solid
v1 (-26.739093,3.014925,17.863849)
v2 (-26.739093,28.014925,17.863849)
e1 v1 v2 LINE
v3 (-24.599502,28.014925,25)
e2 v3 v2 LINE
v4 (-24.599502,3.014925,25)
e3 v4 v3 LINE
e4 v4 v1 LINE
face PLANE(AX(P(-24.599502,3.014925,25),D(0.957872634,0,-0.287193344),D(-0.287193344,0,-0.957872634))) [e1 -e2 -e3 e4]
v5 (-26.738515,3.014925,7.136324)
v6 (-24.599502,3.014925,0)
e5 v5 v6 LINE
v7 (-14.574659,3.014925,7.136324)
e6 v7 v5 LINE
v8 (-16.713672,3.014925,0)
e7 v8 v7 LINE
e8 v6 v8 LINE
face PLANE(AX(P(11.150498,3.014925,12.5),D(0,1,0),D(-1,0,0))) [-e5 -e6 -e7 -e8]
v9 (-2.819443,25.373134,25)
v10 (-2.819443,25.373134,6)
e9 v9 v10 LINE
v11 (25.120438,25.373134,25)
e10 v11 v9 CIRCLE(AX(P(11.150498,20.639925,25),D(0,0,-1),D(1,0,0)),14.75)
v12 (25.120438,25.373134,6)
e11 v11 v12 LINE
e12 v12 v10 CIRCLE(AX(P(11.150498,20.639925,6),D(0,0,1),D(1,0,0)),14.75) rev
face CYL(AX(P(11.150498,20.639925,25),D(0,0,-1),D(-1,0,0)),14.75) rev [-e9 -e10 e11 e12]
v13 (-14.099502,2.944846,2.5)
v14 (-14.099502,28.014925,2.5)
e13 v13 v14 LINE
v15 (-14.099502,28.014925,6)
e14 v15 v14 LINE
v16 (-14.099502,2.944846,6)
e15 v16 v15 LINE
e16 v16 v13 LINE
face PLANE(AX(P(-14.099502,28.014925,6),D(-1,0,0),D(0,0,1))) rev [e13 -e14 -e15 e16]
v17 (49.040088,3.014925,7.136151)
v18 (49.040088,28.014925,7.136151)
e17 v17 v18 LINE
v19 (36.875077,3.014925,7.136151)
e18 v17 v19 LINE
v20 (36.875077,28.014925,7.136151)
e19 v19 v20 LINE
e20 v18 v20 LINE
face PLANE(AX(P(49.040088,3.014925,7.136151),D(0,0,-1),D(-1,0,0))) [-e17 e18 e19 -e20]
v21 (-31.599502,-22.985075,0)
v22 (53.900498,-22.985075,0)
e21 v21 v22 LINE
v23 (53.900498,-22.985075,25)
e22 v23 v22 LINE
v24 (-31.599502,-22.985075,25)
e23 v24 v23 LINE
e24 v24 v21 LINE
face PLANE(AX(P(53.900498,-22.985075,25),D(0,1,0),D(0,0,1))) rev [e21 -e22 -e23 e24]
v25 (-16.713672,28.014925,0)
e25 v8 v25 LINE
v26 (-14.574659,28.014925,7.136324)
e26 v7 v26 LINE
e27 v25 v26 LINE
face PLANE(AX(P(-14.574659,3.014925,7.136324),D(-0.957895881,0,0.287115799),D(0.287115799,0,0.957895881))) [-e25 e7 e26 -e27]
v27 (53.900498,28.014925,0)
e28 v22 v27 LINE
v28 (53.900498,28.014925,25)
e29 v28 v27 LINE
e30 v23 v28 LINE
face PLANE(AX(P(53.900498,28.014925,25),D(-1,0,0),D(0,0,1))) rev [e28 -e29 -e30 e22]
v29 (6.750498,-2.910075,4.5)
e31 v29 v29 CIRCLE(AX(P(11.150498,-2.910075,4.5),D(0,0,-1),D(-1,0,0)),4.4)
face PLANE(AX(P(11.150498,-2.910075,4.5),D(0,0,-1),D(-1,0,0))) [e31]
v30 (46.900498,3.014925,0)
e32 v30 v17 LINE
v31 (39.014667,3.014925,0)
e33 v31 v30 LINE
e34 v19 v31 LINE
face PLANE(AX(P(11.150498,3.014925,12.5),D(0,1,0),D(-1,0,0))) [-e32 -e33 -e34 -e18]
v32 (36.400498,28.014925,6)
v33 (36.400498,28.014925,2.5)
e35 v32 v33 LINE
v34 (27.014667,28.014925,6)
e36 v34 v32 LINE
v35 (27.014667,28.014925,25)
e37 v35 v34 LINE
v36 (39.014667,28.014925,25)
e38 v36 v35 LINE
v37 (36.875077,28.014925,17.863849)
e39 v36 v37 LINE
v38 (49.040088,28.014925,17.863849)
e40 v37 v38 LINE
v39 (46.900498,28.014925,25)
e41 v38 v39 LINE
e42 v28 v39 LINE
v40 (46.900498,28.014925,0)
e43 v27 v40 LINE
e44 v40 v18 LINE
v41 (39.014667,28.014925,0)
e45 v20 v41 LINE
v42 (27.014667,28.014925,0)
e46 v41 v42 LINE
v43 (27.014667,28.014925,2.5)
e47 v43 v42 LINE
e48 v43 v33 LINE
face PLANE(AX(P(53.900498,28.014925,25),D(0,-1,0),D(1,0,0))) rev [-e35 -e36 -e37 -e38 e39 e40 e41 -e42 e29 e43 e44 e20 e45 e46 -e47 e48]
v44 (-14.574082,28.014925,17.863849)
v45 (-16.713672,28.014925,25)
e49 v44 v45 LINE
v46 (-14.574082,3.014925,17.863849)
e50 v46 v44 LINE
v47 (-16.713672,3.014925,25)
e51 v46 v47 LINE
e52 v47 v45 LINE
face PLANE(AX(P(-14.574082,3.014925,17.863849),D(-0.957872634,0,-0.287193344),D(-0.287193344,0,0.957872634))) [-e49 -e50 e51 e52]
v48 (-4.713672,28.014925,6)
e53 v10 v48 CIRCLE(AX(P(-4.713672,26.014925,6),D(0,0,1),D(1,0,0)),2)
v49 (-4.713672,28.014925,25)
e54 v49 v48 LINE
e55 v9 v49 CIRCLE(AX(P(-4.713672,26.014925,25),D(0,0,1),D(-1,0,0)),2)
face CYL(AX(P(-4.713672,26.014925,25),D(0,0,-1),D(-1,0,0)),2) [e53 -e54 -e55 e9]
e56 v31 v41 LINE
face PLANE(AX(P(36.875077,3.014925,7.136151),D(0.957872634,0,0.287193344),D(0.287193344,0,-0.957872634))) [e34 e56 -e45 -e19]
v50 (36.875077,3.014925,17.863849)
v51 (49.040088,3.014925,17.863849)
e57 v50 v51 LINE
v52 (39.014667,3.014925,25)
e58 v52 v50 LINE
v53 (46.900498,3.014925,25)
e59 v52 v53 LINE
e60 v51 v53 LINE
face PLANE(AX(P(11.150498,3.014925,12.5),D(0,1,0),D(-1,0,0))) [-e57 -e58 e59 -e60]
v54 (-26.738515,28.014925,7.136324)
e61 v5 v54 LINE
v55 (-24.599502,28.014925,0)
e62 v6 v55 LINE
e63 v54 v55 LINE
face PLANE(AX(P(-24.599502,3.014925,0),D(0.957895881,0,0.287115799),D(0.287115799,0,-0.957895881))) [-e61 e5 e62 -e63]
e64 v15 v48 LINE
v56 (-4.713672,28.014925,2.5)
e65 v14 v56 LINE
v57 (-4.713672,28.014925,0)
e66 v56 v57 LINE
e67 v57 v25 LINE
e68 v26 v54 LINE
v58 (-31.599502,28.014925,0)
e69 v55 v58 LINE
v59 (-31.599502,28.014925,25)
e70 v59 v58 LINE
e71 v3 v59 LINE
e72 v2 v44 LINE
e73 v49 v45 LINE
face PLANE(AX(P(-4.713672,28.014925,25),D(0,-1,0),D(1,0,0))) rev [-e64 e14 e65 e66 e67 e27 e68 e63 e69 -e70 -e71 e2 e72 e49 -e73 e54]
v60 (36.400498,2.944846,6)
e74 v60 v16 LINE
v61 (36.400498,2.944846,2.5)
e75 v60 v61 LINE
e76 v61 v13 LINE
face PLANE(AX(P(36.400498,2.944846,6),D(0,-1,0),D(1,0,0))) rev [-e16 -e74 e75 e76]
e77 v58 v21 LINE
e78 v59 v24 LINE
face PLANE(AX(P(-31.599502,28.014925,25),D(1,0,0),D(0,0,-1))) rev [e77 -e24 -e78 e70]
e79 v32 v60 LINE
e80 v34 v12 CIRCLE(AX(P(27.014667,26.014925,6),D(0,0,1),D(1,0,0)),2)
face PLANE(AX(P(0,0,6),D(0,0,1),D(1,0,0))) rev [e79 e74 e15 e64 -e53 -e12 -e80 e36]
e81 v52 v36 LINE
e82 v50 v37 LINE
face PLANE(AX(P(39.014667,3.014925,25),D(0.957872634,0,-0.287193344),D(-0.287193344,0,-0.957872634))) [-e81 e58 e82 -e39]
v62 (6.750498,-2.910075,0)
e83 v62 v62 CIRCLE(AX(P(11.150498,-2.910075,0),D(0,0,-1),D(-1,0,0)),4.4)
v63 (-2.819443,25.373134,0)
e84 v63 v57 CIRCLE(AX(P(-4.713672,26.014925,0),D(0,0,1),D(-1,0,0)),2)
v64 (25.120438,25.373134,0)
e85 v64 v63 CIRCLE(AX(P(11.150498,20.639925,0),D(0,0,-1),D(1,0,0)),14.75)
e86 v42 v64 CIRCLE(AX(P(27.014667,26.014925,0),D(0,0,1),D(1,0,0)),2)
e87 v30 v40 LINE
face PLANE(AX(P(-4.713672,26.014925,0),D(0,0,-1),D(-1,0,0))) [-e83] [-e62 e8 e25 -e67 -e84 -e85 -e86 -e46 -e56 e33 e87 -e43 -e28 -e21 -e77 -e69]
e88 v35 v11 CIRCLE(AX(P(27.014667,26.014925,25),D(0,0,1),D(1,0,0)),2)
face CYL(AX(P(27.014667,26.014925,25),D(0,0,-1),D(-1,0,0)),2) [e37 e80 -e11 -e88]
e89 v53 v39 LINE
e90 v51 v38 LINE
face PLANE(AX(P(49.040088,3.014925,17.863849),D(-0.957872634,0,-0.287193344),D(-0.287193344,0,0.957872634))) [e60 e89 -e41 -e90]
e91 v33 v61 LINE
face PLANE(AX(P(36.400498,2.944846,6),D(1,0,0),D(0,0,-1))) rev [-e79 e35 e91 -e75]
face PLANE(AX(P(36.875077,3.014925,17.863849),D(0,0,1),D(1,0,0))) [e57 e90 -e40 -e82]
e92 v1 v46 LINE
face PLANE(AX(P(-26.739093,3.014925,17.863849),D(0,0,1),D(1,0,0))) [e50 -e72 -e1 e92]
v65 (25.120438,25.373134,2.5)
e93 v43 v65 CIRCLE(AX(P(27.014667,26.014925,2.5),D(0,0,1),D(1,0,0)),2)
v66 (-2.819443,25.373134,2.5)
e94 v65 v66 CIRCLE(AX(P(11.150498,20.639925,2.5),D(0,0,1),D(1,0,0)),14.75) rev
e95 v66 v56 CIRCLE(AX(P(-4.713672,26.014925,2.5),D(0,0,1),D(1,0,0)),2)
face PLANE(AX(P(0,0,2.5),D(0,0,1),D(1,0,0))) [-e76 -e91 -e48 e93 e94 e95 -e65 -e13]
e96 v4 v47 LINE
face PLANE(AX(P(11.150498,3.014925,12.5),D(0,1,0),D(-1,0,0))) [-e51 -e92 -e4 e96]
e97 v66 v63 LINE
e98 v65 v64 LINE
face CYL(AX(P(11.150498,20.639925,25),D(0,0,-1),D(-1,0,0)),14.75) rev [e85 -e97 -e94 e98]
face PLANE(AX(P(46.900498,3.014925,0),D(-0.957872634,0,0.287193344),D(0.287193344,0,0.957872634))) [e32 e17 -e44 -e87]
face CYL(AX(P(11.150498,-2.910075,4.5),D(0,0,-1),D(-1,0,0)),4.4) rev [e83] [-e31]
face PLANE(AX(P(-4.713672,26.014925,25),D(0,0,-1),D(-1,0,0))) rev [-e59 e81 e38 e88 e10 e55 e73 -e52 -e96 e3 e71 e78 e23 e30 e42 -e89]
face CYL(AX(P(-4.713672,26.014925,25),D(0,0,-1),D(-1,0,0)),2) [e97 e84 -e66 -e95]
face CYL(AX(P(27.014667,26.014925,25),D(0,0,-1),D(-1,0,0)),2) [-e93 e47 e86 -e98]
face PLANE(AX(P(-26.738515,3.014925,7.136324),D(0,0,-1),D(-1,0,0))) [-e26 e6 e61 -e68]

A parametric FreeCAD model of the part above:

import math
import FreeCAD as App
import Part
import Sketcher
from FreeCAD import Vector
Q = App.Units.Quantity


def add_polygon(sketch, points):
    """Adds a closed chain of lines whose ends are joined by coincident constraints."""
    first, n = sketch.GeometryCount, len(points)
    for a, b in zip(points, points[1:] + points[:1]):
        sketch.addGeometry(Part.LineSegment(App.Vector(*a, 0), App.Vector(*b, 0)), False)
    for i in range(n):
        sketch.addConstraint(Sketcher.Constraint("Coincident", first + i, 2, first + (i + 1) % n, 1))

doc = App.newDocument("Part")
body = doc.addObject("PartDesign::Body", "Body")

# Sketch on XY plane
sketch1 = doc.addObject("Sketcher::SketchObject", "Sketch")
body.addObject(sketch1)
sketch1.AttachmentSupport = (doc.XY_Plane, [""])
sketch1.MapMode = "FlatFace"
sketch1.addGeometry(Part.LineSegment(Vector(53.9, 28, 0), Vector(27, 28, 0)), False)
sketch1.addGeometry(Part.ArcOfCircle(Part.Circle(Vector(27, 26, 0), Vector(0, 0, 1), 2), math.radians(90), math.radians(199)), False)
sketch1.addGeometry(Part.ArcOfCircle(Part.Circle(Vector(11.2, 20.6, 0), Vector(0, 0, 1), 14.8), math.radians(161), math.radians(379)), False)
sketch1.addGeometry(Part.ArcOfCircle(Part.Circle(Vector(-4.7, 26, 0), Vector(0, 0, 1), 2), math.radians(-19), math.radians(90)), False)
sketch1.addGeometry(Part.LineSegment(Vector(-4.7, 28, 0), Vector(-31.6, 28, 0)), False)
sketch1.addGeometry(Part.LineSegment(Vector(-31.6, 28, 0), Vector(-31.6, -23, 0)), False)
sketch1.addGeometry(Part.LineSegment(Vector(-31.6, -23, 0), Vector(53.9, -23, 0)), False)
sketch1.addGeometry(Part.LineSegment(Vector(53.9, -23, 0), Vector(53.9, 28, 0)), False)
sketch1.addConstraint(Sketcher.Constraint("Tangent", 0, 2, 1, 1))
sketch1.addConstraint(Sketcher.Constraint("Tangent", 1, 2, 2, 2))
sketch1.addConstraint(Sketcher.Constraint("Tangent", 2, 1, 3, 1))
sketch1.addConstraint(Sketcher.Constraint("Tangent", 3, 2, 4, 1))
sketch1.addConstraint(Sketcher.Constraint("Coincident", 4, 2, 5, 1))
sketch1.addConstraint(Sketcher.Constraint("Coincident", 5, 2, 6, 1))
sketch1.addConstraint(Sketcher.Constraint("Coincident", 6, 2, 7, 1))
sketch1.addConstraint(Sketcher.Constraint("Coincident", 7, 2, 0, 1))
sketch1.addConstraint(Sketcher.Constraint("Horizontal", 0))
sketch1.addConstraint(Sketcher.Constraint("Horizontal", 4))
sketch1.addConstraint(Sketcher.Constraint("Vertical", 5))
sketch1.addConstraint(Sketcher.Constraint("Horizontal", 6))
sketch1.addConstraint(Sketcher.Constraint("Vertical", 7))
sketch1.addConstraint(Sketcher.Constraint("Equal", 1, 3))
sketch1.addConstraint(Sketcher.Constraint("Horizontal", 1, 3, 3, 3))
sketch1.addConstraint(Sketcher.Constraint("Equal", 0, 4))
sketch1.addConstraint(Sketcher.Constraint("Radius", 1, 2.0))
sketch1.addConstraint(Sketcher.Constraint("DistanceY", 5, 2, 5, 1, 51.0))
sketch1.addConstraint(Sketcher.Constraint("Radius", 2, 14.75))
sketch1.addConstraint(Sketcher.Constraint("DistanceX", 6, 1, 6, 2, 85.5))
sketch1.addConstraint(Sketcher.Constraint("DistanceY", 2, 3, 1, 3, 5.375))
sketch1.addConstraint(Sketcher.Constraint("DistanceX", -1, 1, 1, 3, 27.014667))
sketch1.addConstraint(Sketcher.Constraint("DistanceY", -1, 1, 1, 3, 26.014925))
pad1 = doc.addObject("PartDesign::Pad", "Pad")
body.addObject(pad1)
pad1.Profile = sketch1
pad1.Length = 25

# Sketch on XY plane
sketch2 = doc.addObject("Sketcher::SketchObject", "Sketch001")
body.addObject(sketch2)
sketch2.AttachmentSupport = (doc.XY_Plane, [""])
sketch2.MapMode = "FlatFace"
sketch2.addGeometry(Part.Circle(Vector(11.2, -2.9, 0), Vector(0, 0, 1), 4.4), False)
sketch2.addConstraint(Sketcher.Constraint("Diameter", 0, 8.8))
sketch2.addConstraint(Sketcher.Constraint("DistanceX", -1, 1, 0, 3, 11.150498))
sketch2.addConstraint(Sketcher.Constraint("DistanceY", 0, 3, -1, 1, 2.910075))
pocket1 = doc.addObject("PartDesign::Pocket", "Pocket")
body.addObject(pocket1)
pocket1.Profile = sketch2
pocket1.Length = 4.5
pocket1.Reversed = True

# Sketch on XZ plane
sketch3 = doc.addObject("Sketcher::SketchObject", "Sketch002")
body.addObject(sketch3)
sketch3.AttachmentSupport = (doc.XZ_Plane, [""])
sketch3.MapMode = "FlatFace"
sketch3.AttachmentOffset = App.Placement(Vector(0, 0, -28.014925), App.Rotation())
add_polygon(sketch3, [(-43, -11), (-43, 36), (65, 36), (65, -11)])  # lines 0-3
add_polygon(sketch3, [(-32, 0), (-25, 0), (-27, 7), (-15, 7), (-17, 0), (39, 0), (37, 7), (49, 7), (47, 0), (54, 0), (54, 25), (47, 25), (49, 18), (37, 18), (39, 25), (-17, 25), (-15, 18), (-27, 18), (-25, 25), (-32, 25)])  # lines 4-23
sketch3.addConstraint(Sketcher.Constraint("Vertical", 0))
sketch3.addConstraint(Sketcher.Constraint("Horizontal", 1))
sketch3.addConstraint(Sketcher.Constraint("Vertical", 2))
sketch3.addConstraint(Sketcher.Constraint("Horizontal", 3))
sketch3.addConstraint(Sketcher.Constraint("Horizontal", 4))
sketch3.addConstraint(Sketcher.Constraint("Horizontal", 6))
sketch3.addConstraint(Sketcher.Constraint("Horizontal", 8))
sketch3.addConstraint(Sketcher.Constraint("Horizontal", 10))
sketch3.addConstraint(Sketcher.Constraint("Horizontal", 12))
sketch3.addConstraint(Sketcher.Constraint("Vertical", 13))
sketch3.addConstraint(Sketcher.Constraint("Horizontal", 14))
sketch3.addConstraint(Sketcher.Constraint("Horizontal", 16))
sketch3.addConstraint(Sketcher.Constraint("Horizontal", 18))
sketch3.addConstraint(Sketcher.Constraint("Horizontal", 20))
sketch3.addConstraint(Sketcher.Constraint("Horizontal", 22))
sketch3.addConstraint(Sketcher.Constraint("Vertical", 23))
sketch3.addConstraint(Sketcher.Constraint("PointOnObject", 4, 2, -1))
sketch3.addConstraint(Sketcher.Constraint("PointOnObject", 7, 2, -1))
sketch3.addConstraint(Sketcher.Constraint("PointOnObject", 11, 2, -1))
sketch3.addConstraint(Sketcher.Constraint("Parallel", 9, 15))
sketch3.addConstraint(Sketcher.Constraint("Parallel", 11, 17))
sketch3.addConstraint(Sketcher.Constraint("Parallel", 15, 19))
sketch3.addConstraint(Sketcher.Constraint("Parallel", 17, 21))
sketch3.addConstraint(Sketcher.Constraint("Horizontal", 14, 2, 17, 2))
sketch3.addConstraint(Sketcher.Constraint("Horizontal", 16, 2, 19, 2))
sketch3.addConstraint(Sketcher.Constraint("Horizontal", 18, 2, 21, 2))
sketch3.addConstraint(Sketcher.Constraint("Vertical", 11, 2, 14, 2))
sketch3.addConstraint(Sketcher.Constraint("Vertical", 10, 2, 15, 2))
sketch3.addConstraint(Sketcher.Constraint("Vertical", 9, 2, 16, 2))
sketch3.addConstraint(Sketcher.Constraint("Vertical", 8, 2, 17, 2))
sketch3.addConstraint(Sketcher.Constraint("Vertical", 7, 2, 18, 2))
sketch3.addConstraint(Sketcher.Constraint("Vertical", 4, 2, 21, 2))
sketch3.addConstraint(Sketcher.Constraint("Equal", 4, 12))
sketch3.addConstraint(Sketcher.Constraint("Equal", 16, 20))
sketch3.addConstraint(Sketcher.Constraint("Equal", 5, 7))
sketch3.addConstraint(Sketcher.Constraint("Equal", 7, 9))
sketch3.addConstraint(Sketcher.Constraint("DistanceX", 4, 1, 4, 2, 7.0))
sketch3.addConstraint(Sketcher.Constraint("DistanceY", 13, 1, 13, 2, 25.0))
sketch3.addConstraint(Sketcher.Constraint("DistanceX", 1, 1, 1, 2, 108.03))
sketch3.addConstraint(Sketcher.Constraint("DistanceY", 0, 1, 0, 2, 47.53))
sketch3.addConstraint(Sketcher.Constraint("Angle", 9, Q("106.69 deg")))
sketch3.addConstraint(Sketcher.Constraint("Distance", 5, 7.45))
sketch3.addConstraint(Sketcher.Constraint("DistanceX", 0, 2, -1, 1, 42.865))
sketch3.addConstraint(Sketcher.Constraint("DistanceY", -1, 1, 0, 2, 36.265))
sketch3.addConstraint(Sketcher.Constraint("DistanceX", 8, 1, 8, 2, 55.728339))
sketch3.addConstraint(Sketcher.Constraint("DistanceX", 10, 1, 10, 2, 12.165011))
sketch3.addConstraint(Sketcher.Constraint("DistanceX", 6, 1, 6, 2, 12.163856))
sketch3.addConstraint(Sketcher.Constraint("DistanceX", 6, 2, -1, 1, 14.574659))
pocket2 = doc.addObject("PartDesign::Pocket", "Pocket001")
body.addObject(pocket2)
pocket2.Profile = sketch3
pocket2.Length = 25
pocket2.Reversed = True

# Sketch on XY plane
sketch4 = doc.addObject("Sketcher::SketchObject", "Sketch003")
body.addObject(sketch4)
sketch4.AttachmentSupport = (doc.XY_Plane, [""])
sketch4.MapMode = "FlatFace"
sketch4.AttachmentOffset = App.Placement(Vector(0, 0, 2.5), App.Rotation())
add_polygon(sketch4, [(36, 28), (36, 3), (-14, 3), (-14, 28)])  # lines 0-3
sketch4.addConstraint(Sketcher.Constraint("Vertical", 0))
sketch4.addConstraint(Sketcher.Constraint("Horizontal", 1))
sketch4.addConstraint(Sketcher.Constraint("Vertical", 2))
sketch4.addConstraint(Sketcher.Constraint("Horizontal", 3))
sketch4.addConstraint(Sketcher.Constraint("DistanceX", 1, 2, 1, 1, 50.5))
sketch4.addConstraint(Sketcher.Constraint("DistanceY", 0, 2, 0, 1, 25.07008))
sketch4.addConstraint(Sketcher.Constraint("DistanceX", -1, 1, 0, 2, 36.400498))
sketch4.addConstraint(Sketcher.Constraint("DistanceY", -1, 1, 0, 2, 2.944846))
pocket3 = doc.addObject("PartDesign::Pocket", "Pocket002")
body.addObject(pocket3)
pocket3.Profile = sketch4
pocket3.Length = 3.5
pocket3.Reversed = True

doc.recompute()
